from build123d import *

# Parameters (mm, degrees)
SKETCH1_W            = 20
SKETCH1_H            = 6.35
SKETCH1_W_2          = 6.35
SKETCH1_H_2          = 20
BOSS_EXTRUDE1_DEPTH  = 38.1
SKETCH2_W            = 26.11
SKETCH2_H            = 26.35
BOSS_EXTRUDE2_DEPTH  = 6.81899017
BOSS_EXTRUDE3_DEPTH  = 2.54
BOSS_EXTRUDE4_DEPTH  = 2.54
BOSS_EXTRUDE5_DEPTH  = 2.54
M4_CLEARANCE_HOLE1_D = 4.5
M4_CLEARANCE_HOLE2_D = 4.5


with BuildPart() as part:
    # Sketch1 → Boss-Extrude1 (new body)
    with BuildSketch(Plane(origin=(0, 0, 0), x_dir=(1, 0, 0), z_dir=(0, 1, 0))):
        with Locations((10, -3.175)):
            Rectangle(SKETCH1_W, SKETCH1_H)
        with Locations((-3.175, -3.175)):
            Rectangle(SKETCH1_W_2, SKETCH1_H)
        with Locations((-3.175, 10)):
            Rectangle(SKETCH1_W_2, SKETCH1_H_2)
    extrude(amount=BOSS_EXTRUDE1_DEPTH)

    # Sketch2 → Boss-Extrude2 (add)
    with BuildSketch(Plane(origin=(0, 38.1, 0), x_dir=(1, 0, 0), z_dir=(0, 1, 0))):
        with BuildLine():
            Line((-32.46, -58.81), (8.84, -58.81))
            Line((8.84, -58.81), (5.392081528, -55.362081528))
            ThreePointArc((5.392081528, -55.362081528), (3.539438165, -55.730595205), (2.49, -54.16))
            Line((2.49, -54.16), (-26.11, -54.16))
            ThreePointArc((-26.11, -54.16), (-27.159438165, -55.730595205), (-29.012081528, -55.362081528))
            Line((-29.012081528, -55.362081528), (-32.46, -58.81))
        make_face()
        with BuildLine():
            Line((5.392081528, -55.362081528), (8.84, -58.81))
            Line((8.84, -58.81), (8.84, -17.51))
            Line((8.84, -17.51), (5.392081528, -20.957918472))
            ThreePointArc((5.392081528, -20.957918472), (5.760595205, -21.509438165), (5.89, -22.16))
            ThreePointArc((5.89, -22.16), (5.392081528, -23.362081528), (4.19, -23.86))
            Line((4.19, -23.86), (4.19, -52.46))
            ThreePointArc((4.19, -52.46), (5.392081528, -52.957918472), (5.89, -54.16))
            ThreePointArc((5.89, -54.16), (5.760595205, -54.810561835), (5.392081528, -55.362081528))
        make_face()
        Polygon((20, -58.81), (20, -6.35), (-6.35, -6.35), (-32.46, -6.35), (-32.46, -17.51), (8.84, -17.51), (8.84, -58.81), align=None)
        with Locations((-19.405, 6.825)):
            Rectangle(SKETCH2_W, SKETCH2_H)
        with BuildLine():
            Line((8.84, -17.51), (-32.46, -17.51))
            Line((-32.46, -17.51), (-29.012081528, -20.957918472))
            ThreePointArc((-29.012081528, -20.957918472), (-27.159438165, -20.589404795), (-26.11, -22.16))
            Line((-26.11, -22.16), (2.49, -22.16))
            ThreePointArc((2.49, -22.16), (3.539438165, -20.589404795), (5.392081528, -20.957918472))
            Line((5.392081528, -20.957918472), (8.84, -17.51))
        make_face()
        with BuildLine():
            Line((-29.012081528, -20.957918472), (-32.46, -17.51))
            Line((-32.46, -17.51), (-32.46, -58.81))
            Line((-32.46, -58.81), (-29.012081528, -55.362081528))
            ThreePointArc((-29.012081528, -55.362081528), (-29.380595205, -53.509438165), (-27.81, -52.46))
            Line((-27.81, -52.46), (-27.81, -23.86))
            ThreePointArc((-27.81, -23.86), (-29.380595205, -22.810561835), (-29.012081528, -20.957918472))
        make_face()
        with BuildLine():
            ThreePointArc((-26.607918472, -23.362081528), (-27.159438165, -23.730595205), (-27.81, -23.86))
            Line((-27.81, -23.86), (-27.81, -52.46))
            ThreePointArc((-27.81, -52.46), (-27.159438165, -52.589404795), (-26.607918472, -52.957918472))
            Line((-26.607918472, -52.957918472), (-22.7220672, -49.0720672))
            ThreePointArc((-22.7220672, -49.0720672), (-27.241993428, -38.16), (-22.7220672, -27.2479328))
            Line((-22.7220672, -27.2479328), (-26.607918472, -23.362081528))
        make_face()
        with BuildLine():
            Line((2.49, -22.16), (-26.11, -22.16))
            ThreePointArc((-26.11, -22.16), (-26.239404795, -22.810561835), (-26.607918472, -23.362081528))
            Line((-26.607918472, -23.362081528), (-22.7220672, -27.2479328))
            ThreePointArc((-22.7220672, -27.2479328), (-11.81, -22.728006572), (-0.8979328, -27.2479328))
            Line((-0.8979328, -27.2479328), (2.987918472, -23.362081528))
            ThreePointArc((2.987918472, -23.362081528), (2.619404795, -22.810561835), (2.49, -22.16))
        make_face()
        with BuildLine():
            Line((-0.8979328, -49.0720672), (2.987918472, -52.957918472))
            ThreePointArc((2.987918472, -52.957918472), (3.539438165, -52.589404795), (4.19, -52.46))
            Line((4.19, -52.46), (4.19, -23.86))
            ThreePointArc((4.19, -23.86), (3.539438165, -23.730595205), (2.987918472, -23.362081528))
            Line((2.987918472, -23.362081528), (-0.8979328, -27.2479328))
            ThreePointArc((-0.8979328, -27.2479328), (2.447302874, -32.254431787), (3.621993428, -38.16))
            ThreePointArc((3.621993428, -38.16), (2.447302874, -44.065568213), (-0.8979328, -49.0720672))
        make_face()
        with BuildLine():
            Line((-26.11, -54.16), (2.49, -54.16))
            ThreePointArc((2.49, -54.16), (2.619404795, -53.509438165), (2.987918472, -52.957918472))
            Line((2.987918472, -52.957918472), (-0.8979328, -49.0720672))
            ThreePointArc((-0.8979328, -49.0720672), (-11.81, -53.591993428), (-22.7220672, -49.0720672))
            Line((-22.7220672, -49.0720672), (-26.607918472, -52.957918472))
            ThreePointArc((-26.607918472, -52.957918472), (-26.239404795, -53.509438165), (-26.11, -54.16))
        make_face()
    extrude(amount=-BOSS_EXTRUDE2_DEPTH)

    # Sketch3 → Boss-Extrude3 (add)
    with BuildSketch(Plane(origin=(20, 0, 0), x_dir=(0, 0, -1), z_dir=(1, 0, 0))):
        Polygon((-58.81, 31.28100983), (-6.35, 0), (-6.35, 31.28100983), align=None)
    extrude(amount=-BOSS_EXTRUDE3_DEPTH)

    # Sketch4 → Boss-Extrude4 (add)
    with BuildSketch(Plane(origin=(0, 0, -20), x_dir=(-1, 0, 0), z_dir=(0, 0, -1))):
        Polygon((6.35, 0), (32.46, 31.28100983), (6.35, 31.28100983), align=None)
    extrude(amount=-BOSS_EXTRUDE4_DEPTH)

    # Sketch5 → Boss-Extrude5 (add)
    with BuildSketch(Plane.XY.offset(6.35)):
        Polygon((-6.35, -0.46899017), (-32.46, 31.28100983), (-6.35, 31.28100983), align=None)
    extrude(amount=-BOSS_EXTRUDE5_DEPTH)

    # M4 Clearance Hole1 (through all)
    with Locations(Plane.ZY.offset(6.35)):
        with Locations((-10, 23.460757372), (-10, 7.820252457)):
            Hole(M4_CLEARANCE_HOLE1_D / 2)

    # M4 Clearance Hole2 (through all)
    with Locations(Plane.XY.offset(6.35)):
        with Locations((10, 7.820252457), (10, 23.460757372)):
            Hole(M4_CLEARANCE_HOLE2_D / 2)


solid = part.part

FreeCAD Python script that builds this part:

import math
import FreeCAD as App
import Part
import Sketcher
from FreeCAD import Vector
Q = App.Units.Quantity


def add_polygon(sketch, points):
    """Adds a closed chain of lines whose ends are joined by coincident constraints."""
    first, n = sketch.GeometryCount, len(points)
    for a, b in zip(points, points[1:] + points[:1]):
        sketch.addGeometry(Part.LineSegment(App.Vector(*a, 0), App.Vector(*b, 0)), False)
    for i in range(n):
        sketch.addConstraint(Sketcher.Constraint("Coincident", first + i, 2, first + (i + 1) % n, 1))

doc = App.newDocument("Part")
body = doc.addObject("PartDesign::Body", "Body")

# Sketch on XZ plane
sketch1 = body.newObject("Sketcher::SketchObject", "Sketch")
sketch1.AttachmentSupport = (doc.getObject("XZ_Plane"), [""])
sketch1.MapMode = "FlatFace"
add_polygon(sketch1, [(20, 6), (20, 0), (0, 0), (0, -20), (-6, -20), (-6, 6)])  # lines 0-5
sketch1.addConstraint([
    Sketcher.Constraint("Vertical", 0),
    Sketcher.Constraint("Horizontal", 1),
    Sketcher.Constraint("Vertical", 2),
    Sketcher.Constraint("Horizontal", 3),
    Sketcher.Constraint("Vertical", 4),
    Sketcher.Constraint("Horizontal", 5),
    Sketcher.Constraint("Coincident", 1, 2, -1, 1),
    Sketcher.Constraint("Equal", 3, 0),
    Sketcher.Constraint("Equal", 1, 2),
    Sketcher.Constraint("DistanceX", 3, 2, 3, 1, Q("0.25 in")),
    Sketcher.Constraint("DistanceX", 1, 2, 1, 1, 20.0),
])
pad1 = body.newObject("PartDesign::Pad", "Pad")
pad1.Profile = sketch1
pad1.Length = Q("1.5 in")
pad1.Reversed = True

# Sketch on XZ plane
sketch2 = body.newObject("Sketcher::SketchObject", "Sketch001")
sketch2.AttachmentSupport = (doc.getObject("XZ_Plane"), [""])
sketch2.MapMode = "FlatFace"
sketch2.AttachmentOffset = App.Placement(Vector(0, 0, -1.5 * 25.4), App.Rotation())
add_polygon(sketch2, [(-32.5, 58.8), (20, 58.8), (20, 6.3), (-6.3, 6.3), (-6.3, -20), (-32.5, -20)])  # lines 0-5
sketch2.addGeometry(Part.ArcOfCircle(Part.Circle(Vector(-27.8, 22.2, 0), Vector(0, 0, 1), 1.7), math.radians(-135), math.radians(0)), False)  # 6
sketch2.addGeometry(Part.ArcOfCircle(Part.Circle(Vector(-27.8, 22.2, 0), Vector(0, 0, 1), 1.7), math.radians(0), math.radians(45)), False)  # 7
sketch2.addGeometry(Part.ArcOfCircle(Part.Circle(Vector(-27.8, 22.2, 0), Vector(0, 0, 1), 1.7), math.radians(45), math.radians(90)), False)  # 8
sketch2.addGeometry(Part.ArcOfCircle(Part.Circle(Vector(-27.8, 22.2, 0), Vector(0, 0, 1), 1.7), math.radians(90), math.radians(225)), False)  # 9
sketch2.addGeometry(Part.ArcOfCircle(Part.Circle(Vector(4.2, 22.2, 0), Vector(0, 0, 1), 1.7), math.radians(180), math.radians(315)), False)  # 10
sketch2.addGeometry(Part.ArcOfCircle(Part.Circle(Vector(4.2, 22.2, 0), Vector(0, 0, 1), 1.7), math.radians(-45), math.radians(0)), False)  # 11
sketch2.addGeometry(Part.ArcOfCircle(Part.Circle(Vector(4.2, 22.2, 0), Vector(0, 0, 1), 1.7), math.radians(0), math.radians(90)), False)  # 12
sketch2.addGeometry(Part.ArcOfCircle(Part.Circle(Vector(4.2, 22.2, 0), Vector(0, 0, 1), 1.7), math.radians(90), math.radians(135)), False)  # 13
sketch2.addGeometry(Part.ArcOfCircle(Part.Circle(Vector(4.2, 22.2, 0), Vector(0, 0, 1), 1.7), math.radians(135), math.radians(180)), False)  # 14
sketch2.addGeometry(Part.ArcOfCircle(Part.Circle(Vector(4.2, 54.2, 0), Vector(0, 0, 1), 1.7), math.radians(-90), math.radians(0)), False)  # 15
sketch2.addGeometry(Part.ArcOfCircle(Part.Circle(Vector(4.2, 54.2, 0), Vector(0, 0, 1), 1.7), math.radians(0), math.radians(45)), False)  # 16
sketch2.addGeometry(Part.ArcOfCircle(Part.Circle(Vector(4.2, 54.2, 0), Vector(0, 0, 1), 1.7), math.radians(45), math.radians(180)), False)  # 17
sketch2.addGeometry(Part.ArcOfCircle(Part.Circle(Vector(4.2, 54.2, 0), Vector(0, 0, 1), 1.7), math.radians(-180), math.radians(-135)), False)  # 18
sketch2.addGeometry(Part.ArcOfCircle(Part.Circle(Vector(4.2, 54.2, 0), Vector(0, 0, 1), 1.7), math.radians(-135), math.radians(-90)), False)  # 19
sketch2.addGeometry(Part.ArcOfCircle(Part.Circle(Vector(-27.8, 54.2, 0), Vector(0, 0, 1), 1.7), math.radians(0), math.radians(135)), False)  # 20
sketch2.addGeometry(Part.ArcOfCircle(Part.Circle(Vector(-27.8, 54.2, 0), Vector(0, 0, 1), 1.7), math.radians(135), math.radians(270)), False)  # 21
sketch2.addGeometry(Part.ArcOfCircle(Part.Circle(Vector(-27.8, 54.2, 0), Vector(0, 0, 1), 1.7), math.radians(-90), math.radians(-45)), False)  # 22
sketch2.addGeometry(Part.ArcOfCircle(Part.Circle(Vector(-27.8, 54.2, 0), Vector(0, 0, 1), 1.7), math.radians(-45), math.radians(0)), False)  # 23
sketch2.addGeometry(Part.ArcOfCircle(Part.Circle(Vector(-11.8, 38.2, 0), Vector(0, 0, 1), 15.4), math.radians(135), math.radians(225)), False)  # 24
sketch2.addGeometry(Part.ArcOfCircle(Part.Circle(Vector(-11.8, 38.2, 0), Vector(0, 0, 1), 15.4), math.radians(-135), math.radians(-45)), False)  # 25
sketch2.addGeometry(Part.ArcOfCircle(Part.Circle(Vector(-11.8, 38.2, 0), Vector(0, 0, 1), 15.4), math.radians(-45), math.radians(0)), False)  # 26
sketch2.addGeometry(Part.ArcOfCircle(Part.Circle(Vector(-11.8, 38.2, 0), Vector(0, 0, 1), 15.4), math.radians(0), math.radians(45)), False)  # 27
sketch2.addGeometry(Part.ArcOfCircle(Part.Circle(Vector(-11.8, 38.2, 0), Vector(0, 0, 1), 15.4), math.radians(45), math.radians(135)), False)  # 28
sketch2.addConstraint([
    Sketcher.Constraint("Tangent", 6, 2, 7, 1),
    Sketcher.Constraint("Tangent", 7, 2, 8, 1),
    Sketcher.Constraint("Tangent", 8, 2, 9, 1),
    Sketcher.Constraint("Tangent", 9, 2, 6, 1),
    Sketcher.Constraint("Tangent", 10, 2, 11, 1),
    Sketcher.Constraint("Tangent", 11, 2, 12, 1),
    Sketcher.Constraint("Tangent", 12, 2, 13, 1),
    Sketcher.Constraint("Tangent", 13, 2, 14, 1),
    Sketcher.Constraint("Tangent", 14, 2, 10, 1),
    Sketcher.Constraint("Tangent", 15, 2, 16, 1),
    Sketcher.Constraint("Tangent", 16, 2, 17, 1),
    Sketcher.Constraint("Tangent", 17, 2, 18, 1),
    Sketcher.Constraint("Tangent", 18, 2, 19, 1),
    Sketcher.Constraint("Tangent", 19, 2, 15, 1),
    Sketcher.Constraint("Tangent", 20, 2, 21, 1),
    Sketcher.Constraint("Tangent", 21, 2, 22, 1),
    Sketcher.Constraint("Tangent", 22, 2, 23, 1),
    Sketcher.Constraint("Tangent", 23, 2, 20, 1),
    Sketcher.Constraint("Tangent", 24, 2, 25, 1),
    Sketcher.Constraint("Tangent", 25, 2, 26, 1),
    Sketcher.Constraint("Tangent", 26, 2, 27, 1),
    Sketcher.Constraint("Tangent", 27, 2, 28, 1),
    Sketcher.Constraint("Tangent", 28, 2, 24, 1),
    Sketcher.Constraint("Horizontal", 0),
    Sketcher.Constraint("Vertical", 1),
    Sketcher.Constraint("Horizontal", 2),
    Sketcher.Constraint("Vertical", 3),
    Sketcher.Constraint("Horizontal", 4),
    Sketcher.Constraint("Vertical", 5),
    Sketcher.Constraint("Coincident", 12, 3, 10, 3),
    Sketcher.Constraint("Coincident", 17, 3, 15, 3),
    Sketcher.Constraint("Coincident", 26, 3, 24, 3),
    Sketcher.Constraint("Equal", 6, 7),
    Sketcher.Constraint("Equal", 9, 10),
    Sketcher.Constraint("Equal", 14, 15),
    Sketcher.Constraint("Equal", 19, 20),
    Sketcher.Constraint("Equal", 20, 21),
    Sketcher.Constraint("Horizontal", 9, 3, 10, 3),
    Sketcher.Constraint("Horizontal", 19, 3, 20, 3),
    Sketcher.Constraint("Horizontal", 14, 3, 6, 2),
    Sketcher.Constraint("Horizontal", 9, 2, 10, 2),
    Sketcher.Constraint("Horizontal", 6, 2, 11, 2),
    Sketcher.Constraint("Horizontal", 7, 2, 13, 2),
    Sketcher.Constraint("Horizontal", 11, 2, 14, 2),
    Sketcher.Constraint("Horizontal", 23, 3, 15, 2),
    Sketcher.Constraint("Horizontal", 15, 2, 17, 2),
    Sketcher.Constraint("Horizontal", 16, 2, 20, 2),
    Sketcher.Constraint("Horizontal", 18, 2, 22, 2),
    Sketcher.Constraint("Horizontal", 17, 2, 23, 2),
    Sketcher.Constraint("Horizontal", 24, 2, 25, 2),
    Sketcher.Constraint("Horizontal", 28, 3, 26, 2),
    Sketcher.Constraint("Horizontal", 27, 2, 28, 2),
    Sketcher.Constraint("Vertical", 14, 3, 15, 3),
    Sketcher.Constraint("Vertical", 9, 3, 20, 3),
    Sketcher.Constraint("Vertical", 23, 3, 8, 2),
    Sketcher.Constraint("Vertical", 19, 3, 12, 2),
    Sketcher.Constraint("Vertical", 10, 2, 16, 2),
    Sketcher.Constraint("Vertical", 13, 2, 18, 2),
    Sketcher.Constraint("Vertical", 12, 2, 19, 2),
    Sketcher.Constraint("Vertical", 8, 2, 21, 2),
    Sketcher.Constraint("Vertical", 25, 2, 27, 2),
    Sketcher.Constraint("Equal", 0, 1),
    Sketcher.Constraint("Equal", 2, 3),
    Sketcher.Constraint("DistanceY", -1, 1, 1, 2, Q("0.25 in")),
    Sketcher.Constraint("DistanceX", 2, 2, -1, 1, Q("0.25 in")),
    Sketcher.Constraint("Radius", 6, 1.7),
    Sketcher.Constraint("DistanceX", 0, 1, 0, 2, 52.46),
    Sketcher.Constraint("DistanceX", 2, 2, 2, 1, 26.35),
    Sketcher.Constraint("Radius", 24, 15.431993),
    Sketcher.Constraint("DistanceX", 6, 3, -1, 1, 27.81),
    Sketcher.Constraint("DistanceY", -1, 1, 6, 3, 22.16),
    Sketcher.Constraint("DistanceX", -1, 1, 10, 3, 4.19),
    Sketcher.Constraint("DistanceY", -1, 1, 15, 3, 54.16),
    Sketcher.Constraint("DistanceX", 24, 3, -1, 1, 11.81),
    Sketcher.Constraint("DistanceY", -1, 1, 24, 3, 38.16),
    Sketcher.Constraint("DistanceX", 7, 2, -1, 1, 26.607918),
    Sketcher.Constraint("DistanceX", 9, 2, -1, 1, 29.012082),
    Sketcher.Constraint("DistanceX", 7, 2, 24, 2, 3.885851),
])
pad2 = body.newObject("PartDesign::Pad", "Pad001")
pad2.Profile = sketch2
pad2.Length = 6.81899

# Sketch on YZ plane
sketch3 = body.newObject("Sketcher::SketchObject", "Sketch002")
sketch3.AttachmentSupport = (doc.getObject("YZ_Plane"), [""])
sketch3.MapMode = "FlatFace"
sketch3.AttachmentOffset = App.Placement(Vector(0, 0, 20), App.Rotation())
add_polygon(sketch3, [(31, 59), (0, 6), (31, 6)])  # lines 0-2
sketch3.addConstraint([
    Sketcher.Constraint("Horizontal", 1),
    Sketcher.Constraint("Vertical", 2),
    Sketcher.Constraint("PointOnObject", 0, 2, -2),
    Sketcher.Constraint("DistanceY", -1, 1, 0, 2, Q("0.25 in")),
    Sketcher.Constraint("DistanceY", 2, 1, 2, 2, 52.46),
    Sketcher.Constraint("DistanceX", 1, 1, 1, 2, 31.28101),
])
pad3 = body.newObject("PartDesign::Pad", "Pad002")
pad3.Profile = sketch3
pad3.Length = Q("0.1 in")
pad3.Reversed = True

# Sketch on XY plane
sketch4 = body.newObject("Sketcher::SketchObject", "Sketch003")
sketch4.AttachmentSupport = (doc.getObject("XY_Plane"), [""])
sketch4.MapMode = "FlatFace"
sketch4.AttachmentOffset = App.Placement(Vector(0, 0, -20), App.Rotation())
add_polygon(sketch4, [(-6, 0), (-32, 31), (-6, 31)])  # lines 0-2
sketch4.addConstraint([
    Sketcher.Constraint("Horizontal", 1),
    Sketcher.Constraint("Vertical", 2),
    Sketcher.Constraint("PointOnObject", 2, 2, -1),
    Sketcher.Constraint("DistanceX", 1, 2, -1, 1, Q("0.25 in")),
    Sketcher.Constraint("DistanceX", 1, 1, 1, 2, 26.11),
    Sketcher.Constraint("DistanceY", 2, 2, 2, 1, 31.28101),
])
pad4 = body.newObject("PartDesign::Pad", "Pad003")
pad4.Profile = sketch4
pad4.Length = Q("0.1 in")

# Sketch on XY plane
sketch5 = body.newObject("Sketcher::SketchObject", "Sketch004")
sketch5.AttachmentSupport = (doc.getObject("XY_Plane"), [""])
sketch5.MapMode = "FlatFace"
sketch5.AttachmentOffset = App.Placement(Vector(0, 0, 0.25 * 25.4), App.Rotation())
add_polygon(sketch5, [(-32, 31), (-6, 0), (-6, 31)])  # lines 0-2
sketch5.addConstraint([
    Sketcher.Constraint("Vertical", 1),
    Sketcher.Constraint("Horizontal", 2),
    Sketcher.Constraint("DistanceY", 1, 1, 1, 2, Q("1.25 in")),
    Sketcher.Constraint("DistanceX", 0, 2, -1, 1, Q("0.25 in")),
    Sketcher.Constraint("DistanceX", 2, 2, 2, 1, 26.11),
    Sketcher.Constraint("DistanceY", 0, 2, -1, 1, 0.46899),
])
pad5 = body.newObject("PartDesign::Pad", "Pad004")
pad5.Profile = sketch5
pad5.Length = Q("0.1 in")
pad5.Reversed = True

# Sketch on YZ plane
sketch6 = body.newObject("Sketcher::SketchObject", "Sketch005")
sketch6.AttachmentSupport = (doc.getObject("YZ_Plane"), [""])
sketch6.MapMode = "FlatFace"
sketch6.AttachmentOffset = App.Placement(Vector(0, 0, -0.25 * 25.4), App.Rotation())
sketch6.addGeometry([
    Part.Circle(Vector(23.5, -10, 0), Vector(0, 0, 1), 2.2),
    Part.Circle(Vector(7.8, -10, 0), Vector(0, 0, 1), 2.2),
], False)
sketch6.addConstraint([
    Sketcher.Constraint("Equal", 0, 1),
    Sketcher.Constraint("Horizontal", 0, 3, 1, 3),
    Sketcher.Constraint("Diameter", 0, 4.5),
    Sketcher.Constraint("DistanceY", 0, 3, -1, 1, 10.0),
    Sketcher.Constraint("DistanceX", -1, 1, 0, 3, 23.460757),
    Sketcher.Constraint("DistanceX", -1, 1, 1, 3, 7.820252),
])
doc.recompute()
hole = body.newObject("PartDesign::Hole", "Hole")
hole.Profile = sketch6
hole.ThreadType = "None"
hole.Diameter = 4.5
hole.DepthType = "ThroughAll"
hole.Reversed = True

# Sketch on XY plane
sketch7 = body.newObject("Sketcher::SketchObject", "Sketch006")
sketch7.AttachmentSupport = (doc.getObject("XY_Plane"), [""])
sketch7.MapMode = "FlatFace"
sketch7.AttachmentOffset = App.Placement(Vector(0, 0, 0.25 * 25.4), App.Rotation())
sketch7.addGeometry([
    Part.Circle(Vector(10, 7.8, 0), Vector(0, 0, 1), 2.2),
    Part.Circle(Vector(10, 23.5, 0), Vector(0, 0, 1), 2.2),
], False)
sketch7.addConstraint([
    Sketcher.Constraint("Equal", 0, 1),
    Sketcher.Constraint("Vertical", 0, 3, 1, 3),
    Sketcher.Constraint("Diameter", 0, 4.5),
    Sketcher.Constraint("DistanceX", -1, 1, 0, 3, 10.0),
    Sketcher.Constraint("DistanceY", -1, 1, 0, 3, 7.820252),
    Sketcher.Constraint("DistanceY", -1, 1, 1, 3, 23.460757),
])
doc.recompute()
hole2 = body.newObject("PartDesign::Hole", "Hole001")
hole2.Profile = sketch7
hole2.ThreadType = "None"
hole2.Diameter = 4.5
hole2.DepthType = "ThroughAll"

doc.recompute()
